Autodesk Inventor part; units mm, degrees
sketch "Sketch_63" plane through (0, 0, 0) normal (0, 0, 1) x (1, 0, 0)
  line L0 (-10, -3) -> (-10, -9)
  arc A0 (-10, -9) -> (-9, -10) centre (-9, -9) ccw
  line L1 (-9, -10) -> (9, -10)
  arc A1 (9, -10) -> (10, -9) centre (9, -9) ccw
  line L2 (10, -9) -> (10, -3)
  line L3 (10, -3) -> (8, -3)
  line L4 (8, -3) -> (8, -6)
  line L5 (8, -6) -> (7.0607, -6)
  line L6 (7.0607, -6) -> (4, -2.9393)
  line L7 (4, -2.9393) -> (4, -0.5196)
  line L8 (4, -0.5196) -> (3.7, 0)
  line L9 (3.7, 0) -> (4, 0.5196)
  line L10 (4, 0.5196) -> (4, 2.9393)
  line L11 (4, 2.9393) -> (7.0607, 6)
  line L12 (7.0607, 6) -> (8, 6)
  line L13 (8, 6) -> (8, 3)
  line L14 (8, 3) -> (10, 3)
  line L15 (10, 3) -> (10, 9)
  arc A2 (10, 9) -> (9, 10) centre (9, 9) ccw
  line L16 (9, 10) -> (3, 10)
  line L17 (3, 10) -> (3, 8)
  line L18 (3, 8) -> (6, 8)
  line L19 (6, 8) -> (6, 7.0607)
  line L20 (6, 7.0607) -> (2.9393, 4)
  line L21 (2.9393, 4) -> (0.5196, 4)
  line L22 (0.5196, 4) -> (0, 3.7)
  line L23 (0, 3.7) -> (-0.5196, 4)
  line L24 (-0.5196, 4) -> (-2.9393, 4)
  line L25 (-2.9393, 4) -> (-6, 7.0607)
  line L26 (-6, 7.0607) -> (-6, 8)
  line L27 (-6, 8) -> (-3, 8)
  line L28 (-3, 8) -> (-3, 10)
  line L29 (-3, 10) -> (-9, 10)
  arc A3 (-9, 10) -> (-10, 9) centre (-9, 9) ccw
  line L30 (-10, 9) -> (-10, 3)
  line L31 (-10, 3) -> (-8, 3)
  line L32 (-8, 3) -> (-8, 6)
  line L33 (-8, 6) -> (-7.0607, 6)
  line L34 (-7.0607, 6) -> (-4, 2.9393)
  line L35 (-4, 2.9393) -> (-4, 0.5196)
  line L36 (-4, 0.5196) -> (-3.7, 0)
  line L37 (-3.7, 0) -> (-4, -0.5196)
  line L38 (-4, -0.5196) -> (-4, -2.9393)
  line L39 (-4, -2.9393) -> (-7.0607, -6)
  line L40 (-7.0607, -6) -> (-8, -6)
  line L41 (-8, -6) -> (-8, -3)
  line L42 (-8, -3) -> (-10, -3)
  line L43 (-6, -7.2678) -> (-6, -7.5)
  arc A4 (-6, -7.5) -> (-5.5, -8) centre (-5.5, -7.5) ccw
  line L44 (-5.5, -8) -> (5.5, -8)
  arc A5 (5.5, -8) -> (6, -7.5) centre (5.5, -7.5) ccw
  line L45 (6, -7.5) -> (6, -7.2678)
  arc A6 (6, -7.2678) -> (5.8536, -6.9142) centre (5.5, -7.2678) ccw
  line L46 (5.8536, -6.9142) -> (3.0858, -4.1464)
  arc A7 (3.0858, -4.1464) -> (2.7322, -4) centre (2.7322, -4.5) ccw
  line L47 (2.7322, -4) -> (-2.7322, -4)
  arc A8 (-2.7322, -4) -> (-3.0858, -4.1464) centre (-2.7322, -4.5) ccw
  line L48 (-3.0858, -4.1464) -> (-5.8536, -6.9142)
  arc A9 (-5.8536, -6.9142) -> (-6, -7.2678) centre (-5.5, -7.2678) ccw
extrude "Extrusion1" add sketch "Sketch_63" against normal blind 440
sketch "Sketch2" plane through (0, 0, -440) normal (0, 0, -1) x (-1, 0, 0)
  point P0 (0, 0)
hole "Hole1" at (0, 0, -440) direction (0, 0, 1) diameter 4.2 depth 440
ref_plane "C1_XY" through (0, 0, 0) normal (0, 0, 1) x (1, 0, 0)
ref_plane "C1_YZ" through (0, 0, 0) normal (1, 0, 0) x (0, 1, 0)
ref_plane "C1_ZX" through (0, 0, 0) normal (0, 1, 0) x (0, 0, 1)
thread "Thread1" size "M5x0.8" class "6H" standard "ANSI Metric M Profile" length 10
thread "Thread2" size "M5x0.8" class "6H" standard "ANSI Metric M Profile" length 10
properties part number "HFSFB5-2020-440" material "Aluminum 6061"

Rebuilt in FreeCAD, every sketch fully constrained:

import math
import FreeCAD as App
import Part
import Sketcher
Q = App.Units.Quantity

doc = App.newDocument("Part")
body = doc.addObject("PartDesign::Body", "Body")

sketch1 = body.newObject("Sketcher::SketchObject", "Sketch")
sketch1.AttachmentSupport = (doc.getObject("XY_Plane"), [""])
sketch1.MapMode = "FlatFace"
sketch1.addGeometry([
    Part.LineSegment(App.Vector(-8, -3, 0), App.Vector(-10, -3, 0)),
    Part.LineSegment(App.Vector(-10, -3, 0), App.Vector(-10, -9, 0)),
    Part.ArcOfCircle(Part.Circle(App.Vector(-9, -9, 0), App.Vector(0, 0, 1), 1), math.radians(180), math.radians(270)),
    Part.LineSegment(App.Vector(-9, -10, 0), App.Vector(9, -10, 0)),
    Part.ArcOfCircle(Part.Circle(App.Vector(9, -9, 0), App.Vector(0, 0, 1), 1), math.radians(-90), math.radians(0)),
    Part.LineSegment(App.Vector(10, -9, 0), App.Vector(10, -3, 0)),
    Part.LineSegment(App.Vector(10, -3, 0), App.Vector(8, -3, 0)),
    Part.LineSegment(App.Vector(8, -3, 0), App.Vector(8, -6, 0)),
    Part.LineSegment(App.Vector(8, -6, 0), App.Vector(7.06, -6, 0)),
    Part.LineSegment(App.Vector(7.06, -6, 0), App.Vector(4, -2.94, 0)),
    Part.LineSegment(App.Vector(4, -2.94, 0), App.Vector(4, -0.52, 0)),
    Part.LineSegment(App.Vector(4, -0.52, 0), App.Vector(3.7, 0, 0)),
    Part.LineSegment(App.Vector(3.7, 0, 0), App.Vector(4, 0.52, 0)),
    Part.LineSegment(App.Vector(4, 0.52, 0), App.Vector(4, 2.94, 0)),
    Part.LineSegment(App.Vector(4, 2.94, 0), App.Vector(7.06, 6, 0)),
    Part.LineSegment(App.Vector(7.06, 6, 0), App.Vector(8, 6, 0)),
    Part.LineSegment(App.Vector(8, 6, 0), App.Vector(8, 3, 0)),
    Part.LineSegment(App.Vector(8, 3, 0), App.Vector(10, 3, 0)),
    Part.LineSegment(App.Vector(10, 3, 0), App.Vector(10, 9, 0)),
    Part.ArcOfCircle(Part.Circle(App.Vector(9, 9, 0), App.Vector(0, 0, 1), 1), math.radians(0), math.radians(90)),
    Part.LineSegment(App.Vector(9, 10, 0), App.Vector(3, 10, 0)),
    Part.LineSegment(App.Vector(3, 10, 0), App.Vector(3, 8, 0)),
    Part.LineSegment(App.Vector(3, 8, 0), App.Vector(6, 8, 0)),
    Part.LineSegment(App.Vector(6, 8, 0), App.Vector(6, 7.06, 0)),
    Part.LineSegment(App.Vector(6, 7.06, 0), App.Vector(2.94, 4, 0)),
    Part.LineSegment(App.Vector(2.94, 4, 0), App.Vector(0.52, 4, 0)),
    Part.LineSegment(App.Vector(0.52, 4, 0), App.Vector(0, 3.7, 0)),
    Part.LineSegment(App.Vector(0, 3.7, 0), App.Vector(-0.52, 4, 0)),
    Part.LineSegment(App.Vector(-0.52, 4, 0), App.Vector(-2.94, 4, 0)),
    Part.LineSegment(App.Vector(-2.94, 4, 0), App.Vector(-6, 7.06, 0)),
    Part.LineSegment(App.Vector(-6, 7.06, 0), App.Vector(-6, 8, 0)),
    Part.LineSegment(App.Vector(-6, 8, 0), App.Vector(-3, 8, 0)),
    Part.LineSegment(App.Vector(-3, 8, 0), App.Vector(-3, 10, 0)),
    Part.LineSegment(App.Vector(-3, 10, 0), App.Vector(-9, 10, 0)),
    Part.ArcOfCircle(Part.Circle(App.Vector(-9, 9, 0), App.Vector(0, 0, 1), 1), math.radians(90), math.radians(180)),
    Part.LineSegment(App.Vector(-10, 9, 0), App.Vector(-10, 3, 0)),
    Part.LineSegment(App.Vector(-10, 3, 0), App.Vector(-8, 3, 0)),
    Part.LineSegment(App.Vector(-8, 3, 0), App.Vector(-8, 6, 0)),
    Part.LineSegment(App.Vector(-8, 6, 0), App.Vector(-7.06, 6, 0)),
    Part.LineSegment(App.Vector(-7.06, 6, 0), App.Vector(-4, 2.94, 0)),
    Part.LineSegment(App.Vector(-4, 2.94, 0), App.Vector(-4, 0.52, 0)),
    Part.LineSegment(App.Vector(-4, 0.52, 0), App.Vector(-3.7, 0, 0)),
    Part.LineSegment(App.Vector(-3.7, 0, 0), App.Vector(-4, -0.52, 0)),
    Part.LineSegment(App.Vector(-4, -0.52, 0), App.Vector(-4, -2.94, 0)),
    Part.LineSegment(App.Vector(-4, -2.94, 0), App.Vector(-7.06, -6, 0)),
    Part.LineSegment(App.Vector(-7.06, -6, 0), App.Vector(-8, -6, 0)),
    Part.LineSegment(App.Vector(-8, -6, 0), App.Vector(-8, -3, 0)),
    Part.LineSegment(App.Vector(-6, -7.5, 0), App.Vector(-6, -7.27, 0)),
    Part.ArcOfCircle(Part.Circle(App.Vector(-5.5, -7.27, 0), App.Vector(0, 0, 1), 0.5), math.radians(135), math.radians(180)),
    Part.LineSegment(App.Vector(-5.85, -6.91, 0), App.Vector(-3.09, -4.15, 0)),
    Part.ArcOfCircle(Part.Circle(App.Vector(-2.73, -4.5, 0), App.Vector(0, 0, 1), 0.5), math.radians(90), math.radians(135)),
    Part.LineSegment(App.Vector(-2.73, -4, 0), App.Vector(2.73, -4, 0)),
    Part.ArcOfCircle(Part.Circle(App.Vector(2.73, -4.5, 0), App.Vector(0, 0, 1), 0.5), math.radians(45), math.radians(90)),
    Part.LineSegment(App.Vector(3.09, -4.15, 0), App.Vector(5.85, -6.91, 0)),
    Part.ArcOfCircle(Part.Circle(App.Vector(5.5, -7.27, 0), App.Vector(0, 0, 1), 0.5), math.radians(0), math.radians(45)),
    Part.LineSegment(App.Vector(6, -7.27, 0), App.Vector(6, -7.5, 0)),
    Part.ArcOfCircle(Part.Circle(App.Vector(5.5, -7.5, 0), App.Vector(0, 0, 1), 0.5), math.radians(-90), math.radians(0)),
    Part.LineSegment(App.Vector(5.5, -8, 0), App.Vector(-5.5, -8, 0)),
    Part.ArcOfCircle(Part.Circle(App.Vector(-5.5, -7.5, 0), App.Vector(0, 0, 1), 0.5), math.radians(180), math.radians(270)),
], False)
sketch1.addConstraint([
    Sketcher.Constraint("Coincident", 0, 2, 1, 1),
    Sketcher.Constraint("Tangent", 1, 2, 2, 1),
    Sketcher.Constraint("Tangent", 2, 2, 3, 1),
    Sketcher.Constraint("Tangent", 3, 2, 4, 1),
    Sketcher.Constraint("Tangent", 4, 2, 5, 1),
    Sketcher.Constraint("Coincident", 5, 2, 6, 1),
    Sketcher.Constraint("Coincident", 6, 2, 7, 1),
    Sketcher.Constraint("Coincident", 7, 2, 8, 1),
    Sketcher.Constraint("Coincident", 8, 2, 9, 1),
    Sketcher.Constraint("Coincident", 9, 2, 10, 1),
    Sketcher.Constraint("Coincident", 10, 2, 11, 1),
    Sketcher.Constraint("Coincident", 11, 2, 12, 1),
    Sketcher.Constraint("Coincident", 12, 2, 13, 1),
    Sketcher.Constraint("Coincident", 13, 2, 14, 1),
    Sketcher.Constraint("Coincident", 14, 2, 15, 1),
    Sketcher.Constraint("Coincident", 15, 2, 16, 1),
    Sketcher.Constraint("Coincident", 16, 2, 17, 1),
    Sketcher.Constraint("Coincident", 17, 2, 18, 1),
    Sketcher.Constraint("Tangent", 18, 2, 19, 1),
    Sketcher.Constraint("Tangent", 19, 2, 20, 1),
    Sketcher.Constraint("Coincident", 20, 2, 21, 1),
    Sketcher.Constraint("Coincident", 21, 2, 22, 1),
    Sketcher.Constraint("Coincident", 22, 2, 23, 1),
    Sketcher.Constraint("Coincident", 23, 2, 24, 1),
    Sketcher.Constraint("Coincident", 24, 2, 25, 1),
    Sketcher.Constraint("Coincident", 25, 2, 26, 1),
    Sketcher.Constraint("Coincident", 26, 2, 27, 1),
    Sketcher.Constraint("Coincident", 27, 2, 28, 1),
    Sketcher.Constraint("Coincident", 28, 2, 29, 1),
    Sketcher.Constraint("Coincident", 29, 2, 30, 1),
    Sketcher.Constraint("Coincident", 30, 2, 31, 1),
    Sketcher.Constraint("Coincident", 31, 2, 32, 1),
    Sketcher.Constraint("Coincident", 32, 2, 33, 1),
    Sketcher.Constraint("Tangent", 33, 2, 34, 1),
    Sketcher.Constraint("Tangent", 34, 2, 35, 1),
    Sketcher.Constraint("Coincident", 35, 2, 36, 1),
    Sketcher.Constraint("Coincident", 36, 2, 37, 1),
    Sketcher.Constraint("Coincident", 37, 2, 38, 1),
    Sketcher.Constraint("Coincident", 38, 2, 39, 1),
    Sketcher.Constraint("Coincident", 39, 2, 40, 1),
    Sketcher.Constraint("Coincident", 40, 2, 41, 1),
    Sketcher.Constraint("Coincident", 41, 2, 42, 1),
    Sketcher.Constraint("Coincident", 42, 2, 43, 1),
    Sketcher.Constraint("Coincident", 43, 2, 44, 1),
    Sketcher.Constraint("Coincident", 44, 2, 45, 1),
    Sketcher.Constraint("Coincident", 45, 2, 46, 1),
    Sketcher.Constraint("Coincident", 46, 2, 0, 1),
    Sketcher.Constraint("Tangent", 47, 2, 48, 2),
    Sketcher.Constraint("Tangent", 48, 1, 49, 1),
    Sketcher.Constraint("Tangent", 49, 2, 50, 2),
    Sketcher.Constraint("Tangent", 50, 1, 51, 1),
    Sketcher.Constraint("Tangent", 51, 2, 52, 2),
    Sketcher.Constraint("Tangent", 52, 1, 53, 1),
    Sketcher.Constraint("Tangent", 53, 2, 54, 2),
    Sketcher.Constraint("Tangent", 54, 1, 55, 1),
    Sketcher.Constraint("Tangent", 55, 2, 56, 2),
    Sketcher.Constraint("Tangent", 56, 1, 57, 1),
    Sketcher.Constraint("Tangent", 57, 2, 58, 2),
    Sketcher.Constraint("Tangent", 58, 1, 47, 1),
    Sketcher.Constraint("Horizontal", 0),
    Sketcher.Constraint("Vertical", 1),
    Sketcher.Constraint("Horizontal", 3),
    Sketcher.Constraint("Vertical", 5),
    Sketcher.Constraint("Horizontal", 6),
    Sketcher.Constraint("Vertical", 7),
    Sketcher.Constraint("Horizontal", 8),
    Sketcher.Constraint("Vertical", 10),
    Sketcher.Constraint("Vertical", 13),
    Sketcher.Constraint("Horizontal", 15),
    Sketcher.Constraint("Vertical", 16),
    Sketcher.Constraint("Horizontal", 17),
    Sketcher.Constraint("Vertical", 18),
    Sketcher.Constraint("Horizontal", 20),
    Sketcher.Constraint("Vertical", 21),
    Sketcher.Constraint("Horizontal", 22),
    Sketcher.Constraint("Vertical", 23),
    Sketcher.Constraint("Horizontal", 25),
    Sketcher.Constraint("Horizontal", 28),
    Sketcher.Constraint("Vertical", 30),
    Sketcher.Constraint("Horizontal", 31),
    Sketcher.Constraint("Vertical", 32),
    Sketcher.Constraint("Horizontal", 33),
    Sketcher.Constraint("Vertical", 35),
    Sketcher.Constraint("Horizontal", 36),
    Sketcher.Constraint("Vertical", 37),
    Sketcher.Constraint("Horizontal", 38),
    Sketcher.Constraint("Vertical", 40),
    Sketcher.Constraint("Vertical", 43),
    Sketcher.Constraint("Horizontal", 45),
    Sketcher.Constraint("Vertical", 46),
    Sketcher.Constraint("Vertical", 47),
    Sketcher.Constraint("Horizontal", 51),
    Sketcher.Constraint("Vertical", 55),
    Sketcher.Constraint("Horizontal", 57),
    Sketcher.Constraint("Equal", 2, 4),
    Sketcher.Constraint("Equal", 4, 19),
    Sketcher.Constraint("Equal", 19, 34),
    Sketcher.Constraint("Equal", 48, 50),
    Sketcher.Constraint("Equal", 50, 52),
    Sketcher.Constraint("Equal", 52, 54),
    Sketcher.Constraint("Equal", 54, 56),
    Sketcher.Constraint("Equal", 56, 58),
    Sketcher.Constraint("Symmetric", 2, 3, 19, 3, -1, 1),
    Sketcher.Constraint("Symmetric", 4, 3, 34, 3, -1, 1),
    Sketcher.Constraint("Symmetric", 6, 2, 36, 2, -1, 1),
    Sketcher.Constraint("Symmetric", 8, 2, 38, 2, -1, 1),
    Sketcher.Constraint("Symmetric", 9, 2, 39, 2, -1, 1),
    Sketcher.Constraint("Symmetric", 11, 2, 41, 2, -1, 1),
    Sketcher.Constraint("Symmetric", 12, 2, 42, 2, -1, 1),
    Sketcher.Constraint("Symmetric", 14, 2, 44, 2, -1, 1),
    Sketcher.Constraint("Symmetric", 16, 2, 46, 2, -1, 1),
    Sketcher.Constraint("Symmetric", 48, 3, 54, 3, -2),
    Sketcher.Constraint("Symmetric", 0, 2, 5, 2, -2),
    Sketcher.Constraint("Symmetric", 25, 2, 27, 2, -2),
    Sketcher.Constraint("Symmetric", 23, 2, 29, 2, -2),
    Sketcher.Constraint("Symmetric", 21, 2, 31, 2, -2),
    Sketcher.Constraint("Symmetric", 15, 2, 37, 2, -2),
    Sketcher.Constraint("Symmetric", 13, 2, 39, 2, -2),
    Sketcher.Constraint("PointOnObject", 11, 2, -1),
    Sketcher.Constraint("PointOnObject", 26, 2, -2),
    Sketcher.Constraint("Perpendicular", 9, 14),
    Sketcher.Constraint("Parallel", 14, 24),
    Sketcher.Constraint("Perpendicular", 11, 26),
    Sketcher.Constraint("Perpendicular", 12, 27),
    Sketcher.Constraint("Perpendicular", 24, 29),
    Sketcher.Constraint("Perpendicular", 26, 41),
    Sketcher.Constraint("Perpendicular", 39, 44),
    Sketcher.Constraint("Parallel", 44, 49),
    Sketcher.Constraint("Perpendicular", 49, 53),
    Sketcher.Constraint("Horizontal", 49, 2, 52, 1),
    Sketcher.Constraint("Vertical", 30, 2, 47, 2),
    Sketcher.Constraint("Equal", 33, 1),
    Sketcher.Constraint("Equal", 31, 7),
    Sketcher.Constraint("Equal", 28, 10),
    Sketcher.Constraint("Equal", 36, 21),
    Sketcher.Constraint("Equal", 45, 23),
    Sketcher.Constraint("Equal", 14, 24),
    Sketcher.Constraint("Equal", 12, 26),
    Sketcher.Constraint("Radius", 2, Q("1 mm")),
    Sketcher.Constraint("Radius", 48, Q("0.5 mm")),
    Sketcher.Constraint("DistanceX", 0, 2, 0, 1, Q("2 mm")),
    Sketcher.Constraint("DistanceX", 3, 1, 3, 2, Q("18 mm")),
    Sketcher.Constraint("DistanceX", 20, 2, 20, 1, Q("6 mm")),
    Sketcher.Constraint("DistanceX", 22, 1, 22, 2, Q("3 mm")),
    Sketcher.Constraint("Angle", 11, Q("120.0007 deg")),
    Sketcher.Constraint("DistanceX", -1, 1, 9, 2, Q("4 mm")),
    Sketcher.Constraint("DistanceY", 50, 1, -1, 1, Q("4 mm")),
    Sketcher.Constraint("DistanceY", 56, 1, -1, 1, Q("8 mm")),
    Sketcher.Constraint("Distance", 11, Q("0.6 mm")),
    Sketcher.Constraint("DistanceX", 8, 2, 8, 1, Q("0.9393 mm")),
    Sketcher.Constraint("DistanceX", 51, 1, 51, 2, Q("5.4644 mm")),
])
pad1 = body.newObject("PartDesign::Pad", "Pad")
pad1.Profile = sketch1
pad1.Length = 440
pad1.Reversed = True

sketch2 = body.newObject("Sketcher::SketchObject", "Sketch001")
sketch2.AttachmentSupport = (doc.getObject("XY_Plane"), [""])
sketch2.MapMode = "FlatFace"
sketch2.AttachmentOffset = App.Placement(App.Vector(0, 0, -440), App.Rotation())
sketch2.addGeometry(Part.Circle(App.Vector(0, 0, 0), App.Vector(0, 0, 1), 2.1), False)
sketch2.addConstraint([
    Sketcher.Constraint("Coincident", 0, 3, -1, 1),
    Sketcher.Constraint("Diameter", 0, Q("4.2 mm")),
])
doc.recompute()
hole = body.newObject("PartDesign::Hole", "Hole")
hole.Profile = sketch2
hole.ThreadType = "None"
hole.Diameter = 4.2
hole.DepthType = "Dimension"
hole.Depth = 440
hole.DrillPoint = "Flat"
hole.Reversed = True

doc.recompute()
